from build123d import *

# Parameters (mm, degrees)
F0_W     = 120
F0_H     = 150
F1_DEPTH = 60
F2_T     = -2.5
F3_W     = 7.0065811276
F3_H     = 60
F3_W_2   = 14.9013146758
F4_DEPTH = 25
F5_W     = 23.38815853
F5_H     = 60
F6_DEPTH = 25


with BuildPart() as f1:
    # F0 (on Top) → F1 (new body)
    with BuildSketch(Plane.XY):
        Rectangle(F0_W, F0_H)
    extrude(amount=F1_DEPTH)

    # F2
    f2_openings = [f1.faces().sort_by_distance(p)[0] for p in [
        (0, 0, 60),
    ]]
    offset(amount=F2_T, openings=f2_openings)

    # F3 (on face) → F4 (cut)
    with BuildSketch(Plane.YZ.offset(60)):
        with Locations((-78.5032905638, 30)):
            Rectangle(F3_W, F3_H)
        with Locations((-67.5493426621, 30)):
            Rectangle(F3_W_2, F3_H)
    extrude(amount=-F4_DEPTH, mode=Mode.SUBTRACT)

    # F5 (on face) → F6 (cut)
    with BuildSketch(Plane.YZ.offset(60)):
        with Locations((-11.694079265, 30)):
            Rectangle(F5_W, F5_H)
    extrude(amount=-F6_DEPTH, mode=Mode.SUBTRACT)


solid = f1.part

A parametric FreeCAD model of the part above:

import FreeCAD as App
import Part
import Sketcher

V = App.Vector
Q = App.Units.Quantity


def faces_at(feature, points):
    """Names of the faces that lie closest to the given points."""
    faces = feature.Shape.Faces
    near = lambda p: min(range(len(faces)), key=lambda i: faces[i].distToShape(Part.Vertex(*p))[0])
    return sorted({f"Face{near(p) + 1}" for p in points})


def add_polygon(sketch, points):
    """Adds a closed chain of lines whose ends are joined by coincident constraints."""
    first, n = sketch.GeometryCount, len(points)
    for a, b in zip(points, points[1:] + points[:1]):
        sketch.addGeometry(Part.LineSegment(App.Vector(*a, 0), App.Vector(*b, 0)), False)
    for i in range(n):
        sketch.addConstraint(Sketcher.Constraint("Coincident", first + i, 2, first + (i + 1) % n, 1))

doc = App.newDocument("Part")
body = doc.addObject("PartDesign::Body", "Body")

# Sketch on XY plane
sketch1 = doc.addObject("Sketcher::SketchObject", "Sketch")
body.addObject(sketch1)
sketch1.AttachmentSupport = (doc.XY_Plane, [""])
sketch1.MapMode = "FlatFace"
add_polygon(sketch1, [(-60, 75), (-60, -75), (60, -75), (60, 75)])  # lines 0-3
sketch1.addConstraint(Sketcher.Constraint("Vertical", 0))
sketch1.addConstraint(Sketcher.Constraint("Horizontal", 1))
sketch1.addConstraint(Sketcher.Constraint("Vertical", 2))
sketch1.addConstraint(Sketcher.Constraint("Horizontal", 3))
sketch1.addConstraint(Sketcher.Constraint("Symmetric", 0, 2, 2, 2, -1, 1))
sketch1.addConstraint(Sketcher.Constraint("DistanceX", 1, 1, 1, 2, Q("120 mm")))
sketch1.addConstraint(Sketcher.Constraint("DistanceY", 0, 2, 0, 1, Q("150 mm")))
pad1 = doc.addObject("PartDesign::Pad", "Pad")
body.addObject(pad1)
pad1.Profile = sketch1
pad1.Length = 60
doc.recompute()

thickness = doc.addObject("PartDesign::Thickness", "Thickness")
body.addObject(thickness)
thickness.Base = (pad1, faces_at(pad1, [(0, 0, 60)]))
thickness.Value = 2.5
thickness.Reversed = True
thickness.Join = "Arc"

# Sketch on YZ plane
sketch2 = doc.addObject("Sketcher::SketchObject", "Sketch001")
body.addObject(sketch2)
sketch2.AttachmentSupport = (doc.YZ_Plane, [""])
sketch2.MapMode = "FlatFace"
sketch2.AttachmentOffset = App.Placement(V(0, 0, 60), App.Rotation())
add_polygon(sketch2, [(-82, 60), (-82, 0), (-60, 0), (-60, 60)])  # lines 0-3
sketch2.addConstraint(Sketcher.Constraint("Vertical", 0))
sketch2.addConstraint(Sketcher.Constraint("Horizontal", 1))
sketch2.addConstraint(Sketcher.Constraint("Vertical", 2))
sketch2.addConstraint(Sketcher.Constraint("Horizontal", 3))
sketch2.addConstraint(Sketcher.Constraint("PointOnObject", 0, 2, -1))
sketch2.addConstraint(Sketcher.Constraint("DistanceY", 0, 2, 0, 1, Q("60 mm")))
sketch2.addConstraint(Sketcher.Constraint("DistanceX", 1, 1, 1, 2, Q("21.907896 mm")))
sketch2.addConstraint(Sketcher.Constraint("DistanceX", 0, 2, -1, 1, Q("82.006581 mm")))
pocket1 = doc.addObject("PartDesign::Pocket", "Pocket")
body.addObject(pocket1)
pocket1.Profile = sketch2
pocket1.Length = 25

# Sketch on YZ plane
sketch3 = doc.addObject("Sketcher::SketchObject", "Sketch002")
body.addObject(sketch3)
sketch3.AttachmentSupport = (doc.YZ_Plane, [""])
sketch3.MapMode = "FlatFace"
sketch3.AttachmentOffset = App.Placement(V(0, 0, 60), App.Rotation())
add_polygon(sketch3, [(-23, 60), (-23, 0), (0, 0), (0, 60)])  # lines 0-3
sketch3.addConstraint(Sketcher.Constraint("Vertical", 0))
sketch3.addConstraint(Sketcher.Constraint("Horizontal", 1))
sketch3.addConstraint(Sketcher.Constraint("Vertical", 2))
sketch3.addConstraint(Sketcher.Constraint("Horizontal", 3))
sketch3.addConstraint(Sketcher.Constraint("Coincident", 1, 2, -1, 1))
sketch3.addConstraint(Sketcher.Constraint("DistanceY", 0, 2, 0, 1, Q("60 mm")))
sketch3.addConstraint(Sketcher.Constraint("DistanceX", 1, 1, 1, 2, Q("23.388159 mm")))
pocket2 = doc.addObject("PartDesign::Pocket", "Pocket001")
body.addObject(pocket2)
pocket2.Profile = sketch3
pocket2.Length = 25

doc.recompute()
